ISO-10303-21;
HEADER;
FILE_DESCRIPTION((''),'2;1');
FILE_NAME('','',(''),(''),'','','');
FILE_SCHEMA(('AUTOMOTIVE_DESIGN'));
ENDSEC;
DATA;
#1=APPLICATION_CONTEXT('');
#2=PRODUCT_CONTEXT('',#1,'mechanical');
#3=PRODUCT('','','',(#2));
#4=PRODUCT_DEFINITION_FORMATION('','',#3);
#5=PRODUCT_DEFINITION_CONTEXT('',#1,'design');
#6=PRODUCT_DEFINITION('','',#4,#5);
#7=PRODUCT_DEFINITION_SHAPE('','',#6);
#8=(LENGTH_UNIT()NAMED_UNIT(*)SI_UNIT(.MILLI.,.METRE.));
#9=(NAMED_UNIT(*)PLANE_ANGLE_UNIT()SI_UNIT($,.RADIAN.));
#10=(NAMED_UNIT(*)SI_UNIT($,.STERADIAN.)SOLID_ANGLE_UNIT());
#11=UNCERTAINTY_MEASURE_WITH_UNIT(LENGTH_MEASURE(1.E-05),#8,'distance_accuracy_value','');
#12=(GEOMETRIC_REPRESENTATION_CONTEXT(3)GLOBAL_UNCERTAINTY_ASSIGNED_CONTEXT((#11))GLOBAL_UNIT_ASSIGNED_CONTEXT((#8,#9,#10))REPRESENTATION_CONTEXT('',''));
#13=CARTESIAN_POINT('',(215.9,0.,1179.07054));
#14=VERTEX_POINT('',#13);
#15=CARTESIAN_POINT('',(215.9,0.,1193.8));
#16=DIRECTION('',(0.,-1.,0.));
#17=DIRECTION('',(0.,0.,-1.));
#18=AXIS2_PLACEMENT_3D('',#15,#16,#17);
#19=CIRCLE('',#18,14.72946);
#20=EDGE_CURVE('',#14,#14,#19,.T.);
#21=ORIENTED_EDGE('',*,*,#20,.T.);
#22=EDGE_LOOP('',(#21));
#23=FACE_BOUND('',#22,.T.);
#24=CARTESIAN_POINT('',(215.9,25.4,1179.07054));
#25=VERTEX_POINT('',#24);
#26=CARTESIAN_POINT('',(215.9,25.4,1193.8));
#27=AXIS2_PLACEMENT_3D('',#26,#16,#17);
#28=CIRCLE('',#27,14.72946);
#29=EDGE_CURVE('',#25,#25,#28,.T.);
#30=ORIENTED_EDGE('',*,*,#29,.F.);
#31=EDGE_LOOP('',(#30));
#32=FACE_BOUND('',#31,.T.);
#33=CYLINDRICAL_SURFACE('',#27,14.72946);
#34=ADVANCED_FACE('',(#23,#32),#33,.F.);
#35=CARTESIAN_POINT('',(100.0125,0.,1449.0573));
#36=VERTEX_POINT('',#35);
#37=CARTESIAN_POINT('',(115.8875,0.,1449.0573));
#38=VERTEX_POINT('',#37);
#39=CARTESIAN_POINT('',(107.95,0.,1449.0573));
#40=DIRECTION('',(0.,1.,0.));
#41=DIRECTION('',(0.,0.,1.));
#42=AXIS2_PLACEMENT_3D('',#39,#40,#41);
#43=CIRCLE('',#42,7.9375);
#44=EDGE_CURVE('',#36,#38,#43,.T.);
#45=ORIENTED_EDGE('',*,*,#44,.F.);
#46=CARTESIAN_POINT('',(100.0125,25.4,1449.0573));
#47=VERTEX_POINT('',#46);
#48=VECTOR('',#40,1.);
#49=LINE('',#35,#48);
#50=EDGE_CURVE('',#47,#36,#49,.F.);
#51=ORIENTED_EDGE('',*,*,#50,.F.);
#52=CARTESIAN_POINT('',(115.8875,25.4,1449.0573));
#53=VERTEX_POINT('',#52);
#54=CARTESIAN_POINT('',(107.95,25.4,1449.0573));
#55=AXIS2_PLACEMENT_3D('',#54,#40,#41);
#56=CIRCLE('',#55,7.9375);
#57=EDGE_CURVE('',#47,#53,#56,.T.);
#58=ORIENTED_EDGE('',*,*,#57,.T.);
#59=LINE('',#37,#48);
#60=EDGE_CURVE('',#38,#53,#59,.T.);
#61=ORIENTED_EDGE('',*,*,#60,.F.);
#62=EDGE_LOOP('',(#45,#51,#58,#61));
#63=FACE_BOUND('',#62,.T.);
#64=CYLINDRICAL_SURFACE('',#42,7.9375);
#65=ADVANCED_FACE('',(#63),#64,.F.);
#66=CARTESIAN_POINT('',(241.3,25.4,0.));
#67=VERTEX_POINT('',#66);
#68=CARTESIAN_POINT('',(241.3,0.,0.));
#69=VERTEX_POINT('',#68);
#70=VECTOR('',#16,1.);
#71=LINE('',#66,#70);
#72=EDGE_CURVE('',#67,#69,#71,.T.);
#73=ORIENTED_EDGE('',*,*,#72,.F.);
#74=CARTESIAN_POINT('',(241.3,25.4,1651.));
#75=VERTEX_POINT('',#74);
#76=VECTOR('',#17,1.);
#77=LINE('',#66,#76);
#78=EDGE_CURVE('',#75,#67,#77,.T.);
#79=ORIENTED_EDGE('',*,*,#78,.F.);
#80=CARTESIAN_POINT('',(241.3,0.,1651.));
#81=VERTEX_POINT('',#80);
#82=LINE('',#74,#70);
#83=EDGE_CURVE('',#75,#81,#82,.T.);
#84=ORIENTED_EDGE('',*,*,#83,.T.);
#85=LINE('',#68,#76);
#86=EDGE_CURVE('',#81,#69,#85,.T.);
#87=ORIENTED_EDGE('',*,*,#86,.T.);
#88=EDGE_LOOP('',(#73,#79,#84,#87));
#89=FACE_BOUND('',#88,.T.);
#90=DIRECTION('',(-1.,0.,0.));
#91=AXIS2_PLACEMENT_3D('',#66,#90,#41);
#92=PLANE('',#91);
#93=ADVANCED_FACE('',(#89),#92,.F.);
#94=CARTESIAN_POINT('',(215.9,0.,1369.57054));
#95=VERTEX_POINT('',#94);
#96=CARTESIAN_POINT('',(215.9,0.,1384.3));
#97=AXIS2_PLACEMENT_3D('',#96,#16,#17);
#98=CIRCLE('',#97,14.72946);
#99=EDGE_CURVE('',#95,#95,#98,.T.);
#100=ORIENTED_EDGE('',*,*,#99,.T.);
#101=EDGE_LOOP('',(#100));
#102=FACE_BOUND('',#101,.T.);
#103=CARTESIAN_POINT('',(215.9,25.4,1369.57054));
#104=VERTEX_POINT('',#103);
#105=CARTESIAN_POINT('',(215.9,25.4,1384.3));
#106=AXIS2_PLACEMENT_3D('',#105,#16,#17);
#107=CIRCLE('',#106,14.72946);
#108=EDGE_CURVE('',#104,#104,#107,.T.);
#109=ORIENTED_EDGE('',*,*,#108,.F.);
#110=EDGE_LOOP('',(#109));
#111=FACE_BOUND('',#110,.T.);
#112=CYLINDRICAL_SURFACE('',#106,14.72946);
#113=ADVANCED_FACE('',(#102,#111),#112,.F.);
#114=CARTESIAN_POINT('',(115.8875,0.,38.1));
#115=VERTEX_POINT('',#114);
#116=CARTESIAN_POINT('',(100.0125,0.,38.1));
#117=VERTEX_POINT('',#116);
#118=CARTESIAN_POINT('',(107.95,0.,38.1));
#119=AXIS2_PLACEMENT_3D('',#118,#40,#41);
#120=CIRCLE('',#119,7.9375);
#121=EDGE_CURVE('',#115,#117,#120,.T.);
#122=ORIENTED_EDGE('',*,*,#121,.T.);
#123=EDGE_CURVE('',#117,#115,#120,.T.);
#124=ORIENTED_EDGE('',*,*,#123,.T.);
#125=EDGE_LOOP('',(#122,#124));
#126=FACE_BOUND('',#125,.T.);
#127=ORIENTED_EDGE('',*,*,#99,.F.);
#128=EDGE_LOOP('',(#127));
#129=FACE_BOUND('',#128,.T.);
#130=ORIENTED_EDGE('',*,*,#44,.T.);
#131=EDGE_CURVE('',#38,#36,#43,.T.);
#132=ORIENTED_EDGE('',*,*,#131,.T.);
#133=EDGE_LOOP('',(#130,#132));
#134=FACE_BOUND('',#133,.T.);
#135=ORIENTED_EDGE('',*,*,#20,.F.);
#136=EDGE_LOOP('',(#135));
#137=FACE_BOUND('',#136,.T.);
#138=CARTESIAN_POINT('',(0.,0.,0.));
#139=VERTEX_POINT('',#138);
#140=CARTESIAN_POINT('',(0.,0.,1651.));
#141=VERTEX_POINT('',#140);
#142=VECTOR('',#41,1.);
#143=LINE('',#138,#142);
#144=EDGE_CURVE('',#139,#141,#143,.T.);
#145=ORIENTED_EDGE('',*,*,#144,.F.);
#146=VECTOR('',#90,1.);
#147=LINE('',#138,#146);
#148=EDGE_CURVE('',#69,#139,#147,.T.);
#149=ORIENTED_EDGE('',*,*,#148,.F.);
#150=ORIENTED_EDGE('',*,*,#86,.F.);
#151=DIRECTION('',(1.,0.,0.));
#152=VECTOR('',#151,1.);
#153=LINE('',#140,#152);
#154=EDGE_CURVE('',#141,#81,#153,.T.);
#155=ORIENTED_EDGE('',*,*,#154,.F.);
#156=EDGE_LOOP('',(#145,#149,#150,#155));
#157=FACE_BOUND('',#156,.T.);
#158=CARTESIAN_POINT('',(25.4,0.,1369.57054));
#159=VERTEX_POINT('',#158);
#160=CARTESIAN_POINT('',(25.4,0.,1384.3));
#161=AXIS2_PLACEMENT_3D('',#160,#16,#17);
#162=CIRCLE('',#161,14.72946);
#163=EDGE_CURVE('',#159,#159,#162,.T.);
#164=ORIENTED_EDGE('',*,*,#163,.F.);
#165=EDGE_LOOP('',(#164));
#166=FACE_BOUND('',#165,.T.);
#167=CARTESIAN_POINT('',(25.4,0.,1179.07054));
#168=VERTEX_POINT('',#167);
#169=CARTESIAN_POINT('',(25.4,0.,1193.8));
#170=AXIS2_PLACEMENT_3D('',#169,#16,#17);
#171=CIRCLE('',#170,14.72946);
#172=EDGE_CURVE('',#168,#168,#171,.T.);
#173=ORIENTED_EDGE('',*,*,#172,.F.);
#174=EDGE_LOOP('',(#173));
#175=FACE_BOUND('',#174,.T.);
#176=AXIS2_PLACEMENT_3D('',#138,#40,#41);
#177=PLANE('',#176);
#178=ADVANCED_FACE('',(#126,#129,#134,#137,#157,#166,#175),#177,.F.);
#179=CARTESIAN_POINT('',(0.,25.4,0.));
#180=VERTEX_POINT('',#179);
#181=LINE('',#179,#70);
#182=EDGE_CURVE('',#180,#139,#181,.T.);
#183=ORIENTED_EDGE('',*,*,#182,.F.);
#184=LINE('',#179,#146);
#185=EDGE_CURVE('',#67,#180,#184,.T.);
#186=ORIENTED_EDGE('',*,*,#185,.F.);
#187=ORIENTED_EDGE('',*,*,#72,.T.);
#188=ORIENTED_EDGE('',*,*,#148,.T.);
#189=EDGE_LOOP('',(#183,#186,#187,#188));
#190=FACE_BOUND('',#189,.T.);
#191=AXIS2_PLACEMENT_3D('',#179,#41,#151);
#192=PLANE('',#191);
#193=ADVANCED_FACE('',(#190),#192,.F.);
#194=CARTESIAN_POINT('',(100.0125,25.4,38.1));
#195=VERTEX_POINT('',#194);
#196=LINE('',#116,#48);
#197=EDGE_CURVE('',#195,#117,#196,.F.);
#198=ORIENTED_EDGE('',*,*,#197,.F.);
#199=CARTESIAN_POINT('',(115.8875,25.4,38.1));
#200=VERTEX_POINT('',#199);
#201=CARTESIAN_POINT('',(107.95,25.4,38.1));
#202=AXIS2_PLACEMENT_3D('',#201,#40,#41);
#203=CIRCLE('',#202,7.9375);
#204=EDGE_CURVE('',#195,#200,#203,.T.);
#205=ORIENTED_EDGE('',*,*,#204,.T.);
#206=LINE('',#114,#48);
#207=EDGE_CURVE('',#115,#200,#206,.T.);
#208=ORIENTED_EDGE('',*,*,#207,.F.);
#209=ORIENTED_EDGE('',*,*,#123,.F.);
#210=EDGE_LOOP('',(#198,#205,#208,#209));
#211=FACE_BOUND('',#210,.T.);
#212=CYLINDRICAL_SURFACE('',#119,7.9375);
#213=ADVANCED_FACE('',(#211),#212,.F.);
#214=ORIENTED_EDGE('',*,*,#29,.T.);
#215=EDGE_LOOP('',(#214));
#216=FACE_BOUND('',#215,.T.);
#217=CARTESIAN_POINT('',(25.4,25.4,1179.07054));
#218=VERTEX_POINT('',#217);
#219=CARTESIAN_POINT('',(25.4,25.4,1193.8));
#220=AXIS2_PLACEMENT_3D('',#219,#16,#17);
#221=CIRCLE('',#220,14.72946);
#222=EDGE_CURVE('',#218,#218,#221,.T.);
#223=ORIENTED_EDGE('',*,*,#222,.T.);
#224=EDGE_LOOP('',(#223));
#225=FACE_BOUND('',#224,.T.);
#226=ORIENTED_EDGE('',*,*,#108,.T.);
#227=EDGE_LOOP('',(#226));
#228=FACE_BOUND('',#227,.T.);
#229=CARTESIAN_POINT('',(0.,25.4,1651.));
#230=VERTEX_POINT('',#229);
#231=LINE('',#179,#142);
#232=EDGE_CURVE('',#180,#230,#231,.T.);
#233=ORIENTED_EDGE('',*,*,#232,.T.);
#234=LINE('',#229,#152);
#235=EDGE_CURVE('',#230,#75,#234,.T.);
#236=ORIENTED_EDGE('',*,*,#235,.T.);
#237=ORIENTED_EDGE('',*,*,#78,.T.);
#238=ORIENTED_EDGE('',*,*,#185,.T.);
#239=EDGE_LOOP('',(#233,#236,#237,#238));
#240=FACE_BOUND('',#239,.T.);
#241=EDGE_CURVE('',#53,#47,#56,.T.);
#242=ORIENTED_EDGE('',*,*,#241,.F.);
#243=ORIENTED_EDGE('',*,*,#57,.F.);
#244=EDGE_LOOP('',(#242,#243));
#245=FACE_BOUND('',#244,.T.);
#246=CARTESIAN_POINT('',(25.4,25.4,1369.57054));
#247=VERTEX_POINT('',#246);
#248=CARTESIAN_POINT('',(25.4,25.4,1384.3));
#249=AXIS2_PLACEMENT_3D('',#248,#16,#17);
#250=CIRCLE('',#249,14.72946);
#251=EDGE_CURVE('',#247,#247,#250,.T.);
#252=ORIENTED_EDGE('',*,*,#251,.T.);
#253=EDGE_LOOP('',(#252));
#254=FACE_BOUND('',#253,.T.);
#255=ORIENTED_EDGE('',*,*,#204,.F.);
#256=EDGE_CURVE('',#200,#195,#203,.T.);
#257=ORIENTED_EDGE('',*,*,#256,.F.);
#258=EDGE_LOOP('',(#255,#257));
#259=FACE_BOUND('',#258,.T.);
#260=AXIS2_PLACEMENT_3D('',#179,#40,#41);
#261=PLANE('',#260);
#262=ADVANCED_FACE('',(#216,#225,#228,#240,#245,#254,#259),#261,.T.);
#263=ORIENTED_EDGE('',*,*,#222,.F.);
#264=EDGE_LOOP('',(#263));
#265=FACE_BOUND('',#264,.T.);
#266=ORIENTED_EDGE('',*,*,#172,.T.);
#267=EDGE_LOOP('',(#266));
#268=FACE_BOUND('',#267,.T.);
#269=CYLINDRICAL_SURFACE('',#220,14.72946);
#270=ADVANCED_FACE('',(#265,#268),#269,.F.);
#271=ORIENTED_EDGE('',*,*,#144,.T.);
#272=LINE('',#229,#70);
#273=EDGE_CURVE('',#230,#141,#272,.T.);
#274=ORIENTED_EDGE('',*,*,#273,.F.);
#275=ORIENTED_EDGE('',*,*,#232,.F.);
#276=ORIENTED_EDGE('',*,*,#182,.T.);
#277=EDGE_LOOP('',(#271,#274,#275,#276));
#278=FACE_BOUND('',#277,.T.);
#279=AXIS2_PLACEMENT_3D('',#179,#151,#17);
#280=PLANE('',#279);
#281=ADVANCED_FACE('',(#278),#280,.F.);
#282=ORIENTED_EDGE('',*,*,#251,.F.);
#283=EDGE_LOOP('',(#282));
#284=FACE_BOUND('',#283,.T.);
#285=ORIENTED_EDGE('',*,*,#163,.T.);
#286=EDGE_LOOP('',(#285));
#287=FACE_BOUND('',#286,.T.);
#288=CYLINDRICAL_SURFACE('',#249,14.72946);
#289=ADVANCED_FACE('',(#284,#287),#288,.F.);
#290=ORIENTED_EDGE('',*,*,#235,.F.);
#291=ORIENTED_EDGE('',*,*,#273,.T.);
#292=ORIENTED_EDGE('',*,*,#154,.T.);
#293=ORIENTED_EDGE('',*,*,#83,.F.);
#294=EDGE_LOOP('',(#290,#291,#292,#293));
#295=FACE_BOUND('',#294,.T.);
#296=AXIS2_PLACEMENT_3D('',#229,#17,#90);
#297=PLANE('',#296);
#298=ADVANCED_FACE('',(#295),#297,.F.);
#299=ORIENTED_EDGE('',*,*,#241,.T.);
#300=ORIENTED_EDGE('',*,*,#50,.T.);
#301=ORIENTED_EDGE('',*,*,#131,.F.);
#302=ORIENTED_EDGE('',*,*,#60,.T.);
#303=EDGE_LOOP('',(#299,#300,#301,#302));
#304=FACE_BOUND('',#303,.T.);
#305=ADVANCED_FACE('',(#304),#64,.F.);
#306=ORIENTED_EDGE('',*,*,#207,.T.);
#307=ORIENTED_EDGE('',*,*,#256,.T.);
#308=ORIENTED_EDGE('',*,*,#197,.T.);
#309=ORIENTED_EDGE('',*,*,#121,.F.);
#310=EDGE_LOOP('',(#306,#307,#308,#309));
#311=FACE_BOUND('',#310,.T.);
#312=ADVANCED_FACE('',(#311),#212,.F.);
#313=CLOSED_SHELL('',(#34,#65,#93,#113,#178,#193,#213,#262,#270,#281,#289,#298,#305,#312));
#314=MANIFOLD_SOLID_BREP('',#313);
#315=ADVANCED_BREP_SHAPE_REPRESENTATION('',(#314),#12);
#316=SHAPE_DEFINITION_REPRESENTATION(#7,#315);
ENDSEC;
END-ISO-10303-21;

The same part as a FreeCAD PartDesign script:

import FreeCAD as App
import Part
import Sketcher
Q = App.Units.Quantity


def add_polygon(sketch, points):
    """Adds a closed chain of lines whose ends are joined by coincident constraints."""
    first, n = sketch.GeometryCount, len(points)
    for a, b in zip(points, points[1:] + points[:1]):
        sketch.addGeometry(Part.LineSegment(App.Vector(*a, 0), App.Vector(*b, 0)), False)
    for i in range(n):
        sketch.addConstraint(Sketcher.Constraint("Coincident", first + i, 2, first + (i + 1) % n, 1))

doc = App.newDocument("Part")
body = doc.addObject("PartDesign::Body", "Body")

sketch1 = body.newObject("Sketcher::SketchObject", "Sketch")
sketch1.AttachmentSupport = (doc.getObject("XZ_Plane"), [""])
sketch1.MapMode = "FlatFace"
add_polygon(sketch1, [(0, 0), (0, 1651), (241, 1651), (241, 0)])
sketch1.addConstraint([
    Sketcher.Constraint("Vertical", 0),
    Sketcher.Constraint("Horizontal", 1),
    Sketcher.Constraint("Vertical", 2),
    Sketcher.Constraint("Horizontal", 3),
    Sketcher.Constraint("Coincident", 3, 2, -1, 1),
    Sketcher.Constraint("DistanceY", 0, 1, 0, 2, Q("65 in")),
    Sketcher.Constraint("DistanceX", 1, 1, 1, 2, Q("9.5 in")),
])
pad1 = body.newObject("PartDesign::Pad", "Pad")
pad1.Profile = sketch1
pad1.Length = Q("1 in")
pad1.Reversed = True

sketch2 = body.newObject("Sketcher::SketchObject", "Sketch001")
sketch2.AttachmentSupport = (doc.getObject("XZ_Plane"), [""])
sketch2.MapMode = "FlatFace"
sketch2.AttachmentOffset = App.Placement(App.Vector(0, 0, -1 * 25.4), App.Rotation())
sketch2.addGeometry([
    Part.Circle(App.Vector(108, 38, 0), App.Vector(0, 0, 1), 8),
    Part.Circle(App.Vector(108, 1449, 0), App.Vector(0, 0, 1), 8),
], False)
sketch2.addConstraint([
    Sketcher.Constraint("Equal", 0, 1),
    Sketcher.Constraint("Vertical", 0, 3, 1, 3),
    Sketcher.Constraint("Diameter", 0, Q("0.625 in")),
    Sketcher.Constraint("DistanceY", -1, 1, 0, 3, Q("1.5 in")),
    Sketcher.Constraint("DistanceX", -1, 1, 0, 3, Q("4.25 in")),
    Sketcher.Constraint("DistanceY", -1, 1, 1, 3, Q("57.0495 in")),
])
pocket1 = body.newObject("PartDesign::Pocket", "Pocket")
pocket1.Profile = sketch2
pocket1.Type = "ThroughAll"
pocket1.Midplane = True

sketch3 = body.newObject("Sketcher::SketchObject", "Sketch002")
sketch3.AttachmentSupport = (doc.getObject("XZ_Plane"), [""])
sketch3.MapMode = "FlatFace"
sketch3.addGeometry([
    Part.Circle(App.Vector(216, 1194, 0), App.Vector(0, 0, 1), 15),
    Part.Circle(App.Vector(25, 1194, 0), App.Vector(0, 0, 1), 15),
    Part.Circle(App.Vector(25, 1384, 0), App.Vector(0, 0, 1), 15),
    Part.Circle(App.Vector(216, 1384, 0), App.Vector(0, 0, 1), 15),
], False)
sketch3.addConstraint([
    Sketcher.Constraint("Equal", 0, 1),
    Sketcher.Constraint("Equal", 1, 2),
    Sketcher.Constraint("Equal", 2, 3),
    Sketcher.Constraint("Horizontal", 0, 3, 1, 3),
    Sketcher.Constraint("Horizontal", 2, 3, 3, 3),
    Sketcher.Constraint("Vertical", 1, 3, 2, 3),
    Sketcher.Constraint("Vertical", 0, 3, 3, 3),
    Sketcher.Constraint("DistanceY", -1, 1, 0, 3, Q("47 in")),
    Sketcher.Constraint("DistanceX", -1, 1, 1, 3, Q("1 in")),
    Sketcher.Constraint("Diameter", 0, Q("1.1598 in")),
    Sketcher.Constraint("DistanceX", -1, 1, 0, 3, Q("8.5 in")),
    Sketcher.Constraint("DistanceY", -1, 1, 2, 3, Q("54.5 in")),
])
pocket2 = body.newObject("PartDesign::Pocket", "Pocket001")
pocket2.Profile = sketch3
pocket2.Type = "ThroughAll"

doc.recompute()
